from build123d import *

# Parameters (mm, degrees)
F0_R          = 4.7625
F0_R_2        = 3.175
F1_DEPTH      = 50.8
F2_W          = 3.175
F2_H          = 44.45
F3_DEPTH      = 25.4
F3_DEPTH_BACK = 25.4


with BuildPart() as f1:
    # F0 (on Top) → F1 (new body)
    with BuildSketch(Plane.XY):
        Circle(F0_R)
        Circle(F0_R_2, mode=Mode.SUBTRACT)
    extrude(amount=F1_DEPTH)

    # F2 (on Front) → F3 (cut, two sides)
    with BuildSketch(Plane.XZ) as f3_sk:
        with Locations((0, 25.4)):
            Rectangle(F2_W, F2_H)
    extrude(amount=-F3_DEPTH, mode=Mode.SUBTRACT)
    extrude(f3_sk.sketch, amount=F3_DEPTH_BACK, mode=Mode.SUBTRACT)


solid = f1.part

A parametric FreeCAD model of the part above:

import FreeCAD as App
import Part
import Sketcher

V = App.Vector
Q = App.Units.Quantity


def add_polygon(sketch, points):
    """Adds a closed chain of lines whose ends are joined by coincident constraints."""
    first, n = sketch.GeometryCount, len(points)
    for a, b in zip(points, points[1:] + points[:1]):
        sketch.addGeometry(Part.LineSegment(App.Vector(*a, 0), App.Vector(*b, 0)), False)
    for i in range(n):
        sketch.addConstraint(Sketcher.Constraint("Coincident", first + i, 2, first + (i + 1) % n, 1))

doc = App.newDocument("Part")
body = doc.addObject("PartDesign::Body", "Body")

# Sketch on XY plane
sketch1 = body.newObject("Sketcher::SketchObject", "Sketch")
sketch1.AttachmentSupport = (doc.getObject("XY_Plane"), [""])
sketch1.MapMode = "FlatFace"
sketch1.addGeometry(Part.Circle(V(0, 0, 0), V(0, 0, 1), 4.8), False)
sketch1.addGeometry(Part.Circle(V(0, 0, 0), V(0, 0, 1), 3.2), False)
sketch1.addConstraint(Sketcher.Constraint("Coincident", 0, 3, -1, 1))
sketch1.addConstraint(Sketcher.Constraint("Coincident", 1, 3, -1, 1))
sketch1.addConstraint(Sketcher.Constraint("Diameter", 1, Q("0.25 in")))
sketch1.addConstraint(Sketcher.Constraint("Diameter", 0, Q("0.375 in")))
pad1 = body.newObject("PartDesign::Pad", "Pad")
pad1.Profile = sketch1
pad1.Length = Q("2 in")

# Sketch on XZ plane
sketch2 = body.newObject("Sketcher::SketchObject", "Sketch001")
sketch2.AttachmentSupport = (doc.getObject("XZ_Plane"), [""])
sketch2.MapMode = "FlatFace"
add_polygon(sketch2, [(-1.6, 47.6), (-1.6, 3.2), (1.6, 3.2), (1.6, 47.6)])  # lines 0-3
sketch2.addConstraint(Sketcher.Constraint("Vertical", 0))
sketch2.addConstraint(Sketcher.Constraint("Horizontal", 1))
sketch2.addConstraint(Sketcher.Constraint("Vertical", 2))
sketch2.addConstraint(Sketcher.Constraint("Horizontal", 3))
sketch2.addConstraint(Sketcher.Constraint("DistanceY", 0, 2, 0, 1, Q("1.75 in")))
sketch2.addConstraint(Sketcher.Constraint("DistanceX", 1, 1, 1, 2, Q("0.125 in")))
sketch2.addConstraint(Sketcher.Constraint("DistanceX", 0, 2, -1, 1, Q("0.0625 in")))
sketch2.addConstraint(Sketcher.Constraint("DistanceY", -1, 1, 0, 2, Q("0.125 in")))
pocket1 = body.newObject("PartDesign::Pocket", "Pocket")
pocket1.Profile = sketch2
pocket1.Type = "ThroughAll"
pocket1.Midplane = True

doc.recompute()
